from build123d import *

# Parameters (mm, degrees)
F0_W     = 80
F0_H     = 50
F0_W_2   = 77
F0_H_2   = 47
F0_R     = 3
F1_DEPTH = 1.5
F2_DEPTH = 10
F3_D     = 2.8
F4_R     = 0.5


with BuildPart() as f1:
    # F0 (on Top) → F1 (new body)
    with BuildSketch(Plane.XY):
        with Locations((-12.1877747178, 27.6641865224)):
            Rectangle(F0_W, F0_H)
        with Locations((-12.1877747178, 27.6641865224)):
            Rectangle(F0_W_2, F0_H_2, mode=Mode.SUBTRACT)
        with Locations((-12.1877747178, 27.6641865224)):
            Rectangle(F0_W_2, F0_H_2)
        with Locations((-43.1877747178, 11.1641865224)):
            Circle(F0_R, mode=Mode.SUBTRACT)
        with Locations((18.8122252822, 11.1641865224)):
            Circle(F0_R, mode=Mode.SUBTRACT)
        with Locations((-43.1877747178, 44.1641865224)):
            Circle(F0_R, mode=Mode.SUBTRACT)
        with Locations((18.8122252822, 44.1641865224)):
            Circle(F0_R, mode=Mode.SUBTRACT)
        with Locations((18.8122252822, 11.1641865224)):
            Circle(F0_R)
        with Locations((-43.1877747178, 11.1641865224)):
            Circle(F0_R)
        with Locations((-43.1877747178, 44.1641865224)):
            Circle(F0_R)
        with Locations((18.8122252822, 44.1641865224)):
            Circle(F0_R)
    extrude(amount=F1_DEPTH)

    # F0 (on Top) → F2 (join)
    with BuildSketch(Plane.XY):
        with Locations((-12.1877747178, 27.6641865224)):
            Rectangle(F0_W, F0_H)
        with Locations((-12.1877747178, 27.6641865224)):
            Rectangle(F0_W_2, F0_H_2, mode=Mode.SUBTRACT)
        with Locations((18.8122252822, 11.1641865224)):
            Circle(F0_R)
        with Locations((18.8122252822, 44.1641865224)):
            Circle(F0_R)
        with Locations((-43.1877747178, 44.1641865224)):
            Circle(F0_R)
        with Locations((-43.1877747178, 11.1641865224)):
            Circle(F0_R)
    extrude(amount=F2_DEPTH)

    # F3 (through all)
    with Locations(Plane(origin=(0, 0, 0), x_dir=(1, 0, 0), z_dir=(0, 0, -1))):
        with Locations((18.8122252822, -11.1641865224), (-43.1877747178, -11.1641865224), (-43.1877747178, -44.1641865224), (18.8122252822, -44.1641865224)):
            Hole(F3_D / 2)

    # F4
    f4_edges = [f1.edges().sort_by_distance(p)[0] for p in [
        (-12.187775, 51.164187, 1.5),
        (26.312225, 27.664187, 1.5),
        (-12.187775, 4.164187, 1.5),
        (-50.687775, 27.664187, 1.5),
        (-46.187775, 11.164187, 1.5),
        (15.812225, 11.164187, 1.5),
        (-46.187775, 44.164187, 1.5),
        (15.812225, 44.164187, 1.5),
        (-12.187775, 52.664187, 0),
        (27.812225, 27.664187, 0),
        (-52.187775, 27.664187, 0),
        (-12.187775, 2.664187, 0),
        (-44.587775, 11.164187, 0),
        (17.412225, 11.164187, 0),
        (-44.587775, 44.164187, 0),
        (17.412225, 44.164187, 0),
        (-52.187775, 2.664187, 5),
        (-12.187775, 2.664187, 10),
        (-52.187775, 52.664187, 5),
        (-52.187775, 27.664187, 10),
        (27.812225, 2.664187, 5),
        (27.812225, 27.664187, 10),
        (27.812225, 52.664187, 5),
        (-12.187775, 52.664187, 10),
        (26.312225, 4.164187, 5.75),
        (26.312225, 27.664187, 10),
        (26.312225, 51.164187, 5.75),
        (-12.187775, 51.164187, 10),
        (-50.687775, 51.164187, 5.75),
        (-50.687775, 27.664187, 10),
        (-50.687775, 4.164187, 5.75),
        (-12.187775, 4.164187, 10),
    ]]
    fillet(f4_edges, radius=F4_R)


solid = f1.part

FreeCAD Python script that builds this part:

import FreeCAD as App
import Part
import Sketcher


def edges_at(feature, points):
    """Names of the edges that pass closest to the given points."""
    edges = feature.Shape.Edges
    near = lambda p: min(range(len(edges)), key=lambda i: edges[i].distToShape(Part.Vertex(*p))[0])
    return sorted({f"Edge{near(p) + 1}" for p in points})


def add_polygon(sketch, points):
    """Adds a closed chain of lines whose ends are joined by coincident constraints."""
    first, n = sketch.GeometryCount, len(points)
    for a, b in zip(points, points[1:] + points[:1]):
        sketch.addGeometry(Part.LineSegment(App.Vector(*a, 0), App.Vector(*b, 0)), False)
    for i in range(n):
        sketch.addConstraint(Sketcher.Constraint("Coincident", first + i, 2, first + (i + 1) % n, 1))

doc = App.newDocument("Part")
params = doc.addObject("Spreadsheet::Sheet", "Params")
for row, (alias, value) in enumerate([
    ("sketch1_width", "80 mm"),
    ("sketch1_height", "50 mm"),
    ("pad1_length", "1.5 mm"),
    ("sketch2_diameter", "6 mm"),
    ("sketch2_width", "80 mm"),
    ("sketch2_width2", "77 mm"),
    ("sketch2_height", "50 mm"),
    ("sketch2_height2", "47 mm"),
    ("pad2_length", "10 mm"),
    ("sketch3_diameter", "2.8 mm"),
    ("hole_diameter", "2.8 mm"),
    ("fillet_radius", "0.5 mm"),
], start=1):
    params.set(f"A{row}", alias)
    params.set(f"B{row}", "=" + value)
    params.setAlias(f"B{row}", alias)

body = doc.addObject("PartDesign::Body", "Body")

# Sketch on XY plane
sketch1 = body.newObject("Sketcher::SketchObject", "Sketch")
sketch1.AttachmentSupport = (doc.getObject("XY_Plane"), [""])
sketch1.MapMode = "FlatFace"
add_polygon(sketch1, [(-52.187775, 52.664187), (-52.187775, 2.664187), (27.812225, 2.664187), (27.812225, 52.664187)])  # lines 0-3
sketch1.addConstraint([
    Sketcher.Constraint("Vertical", 0),
    Sketcher.Constraint("Horizontal", 1),
    Sketcher.Constraint("Vertical", 2),
    Sketcher.Constraint("Horizontal", 3),
    Sketcher.Constraint("DistanceX", 1, 1, 1, 2, 80.0),
    Sketcher.Constraint("DistanceY", 0, 2, 0, 1, 50.0),
    Sketcher.Constraint("DistanceX", 0, 2, -1, 1, 52.187775),
    Sketcher.Constraint("DistanceY", -1, 1, 0, 2, 2.664187),
])
sketch1.setExpression("Constraints[8]", "Params.sketch1_width")
sketch1.setExpression("Constraints[9]", "Params.sketch1_height")
pad1 = body.newObject("PartDesign::Pad", "Pad")
pad1.Profile = sketch1
pad1.setExpression("Length", "Params.pad1_length")

# Sketch on XY plane
sketch2 = body.newObject("Sketcher::SketchObject", "Sketch001")
sketch2.AttachmentSupport = (doc.getObject("XY_Plane"), [""])
sketch2.MapMode = "FlatFace"
add_polygon(sketch2, [(-52.187775, 52.664187), (-52.187775, 2.664187), (27.812225, 2.664187), (27.812225, 52.664187)])  # lines 0-3
add_polygon(sketch2, [(26.312225, 4.164187), (-50.687775, 4.164187), (-50.687775, 51.164187), (26.312225, 51.164187)])  # lines 4-7
sketch2.addGeometry(Part.Circle(App.Vector(18.812225, 11.164187, 0), App.Vector(0, 0, 1), 3), False)  # 8
sketch2.addGeometry(Part.Circle(App.Vector(18.812225, 44.164187, 0), App.Vector(0, 0, 1), 3), False)  # 9
sketch2.addGeometry(Part.Circle(App.Vector(-43.187775, 44.164187, 0), App.Vector(0, 0, 1), 3), False)  # 10
sketch2.addGeometry(Part.Circle(App.Vector(-43.187775, 11.164187, 0), App.Vector(0, 0, 1), 3), False)  # 11
sketch2.addConstraint([
    Sketcher.Constraint("Vertical", 0),
    Sketcher.Constraint("Horizontal", 1),
    Sketcher.Constraint("Vertical", 2),
    Sketcher.Constraint("Horizontal", 3),
    Sketcher.Constraint("Horizontal", 4),
    Sketcher.Constraint("Vertical", 5),
    Sketcher.Constraint("Horizontal", 6),
    Sketcher.Constraint("Vertical", 7),
    Sketcher.Constraint("Equal", 8, 9),
    Sketcher.Constraint("Equal", 9, 10),
    Sketcher.Constraint("Equal", 10, 11),
    Sketcher.Constraint("Horizontal", 9, 3, 10, 3),
    Sketcher.Constraint("Horizontal", 8, 3, 11, 3),
    Sketcher.Constraint("Vertical", 8, 3, 9, 3),
    Sketcher.Constraint("Vertical", 10, 3, 11, 3),
    Sketcher.Constraint("Diameter", 8, 6.0),
    Sketcher.Constraint("DistanceX", 1, 1, 1, 2, 80.0),
    Sketcher.Constraint("DistanceX", 4, 2, 4, 1, 77.0),
    Sketcher.Constraint("DistanceY", 0, 2, 0, 1, 50.0),
    Sketcher.Constraint("DistanceY", 5, 1, 5, 2, 47.0),
    Sketcher.Constraint("DistanceY", 8, 3, 9, 3, 33.0),
    Sketcher.Constraint("DistanceX", 10, 3, 9, 3, 62.0),
    Sketcher.Constraint("DistanceX", 0, 2, 11, 3, 9.0),
    Sketcher.Constraint("DistanceY", 4, 2, 11, 3, 7.0),
    Sketcher.Constraint("DistanceY", 0, 2, 11, 3, 8.5),
    Sketcher.Constraint("DistanceX", 0, 2, 4, 2, 1.5),
    Sketcher.Constraint("DistanceX", -1, 1, 8, 3, 18.812225),
    Sketcher.Constraint("DistanceY", -1, 1, 8, 3, 11.164187),
])
sketch2.setExpression("Constraints[23]", "Params.sketch2_diameter")
sketch2.setExpression("Constraints[24]", "Params.sketch2_width")
sketch2.setExpression("Constraints[25]", "Params.sketch2_width2")
sketch2.setExpression("Constraints[26]", "Params.sketch2_height")
sketch2.setExpression("Constraints[27]", "Params.sketch2_height2")
pad2 = body.newObject("PartDesign::Pad", "Pad001")
pad2.Profile = sketch2
pad2.setExpression("Length", "Params.pad2_length")

# Sketch on XY plane
sketch3 = body.newObject("Sketcher::SketchObject", "Sketch002")
sketch3.AttachmentSupport = (doc.getObject("XY_Plane"), [""])
sketch3.MapMode = "FlatFace"
sketch3.addGeometry([
    Part.Circle(App.Vector(18.812225, 11.164187, 0), App.Vector(0, 0, 1), 1.4),
    Part.Circle(App.Vector(-43.187775, 11.164187, 0), App.Vector(0, 0, 1), 1.4),
    Part.Circle(App.Vector(-43.187775, 44.164187, 0), App.Vector(0, 0, 1), 1.4),
    Part.Circle(App.Vector(18.812225, 44.164187, 0), App.Vector(0, 0, 1), 1.4),
], False)
sketch3.addConstraint([
    Sketcher.Constraint("Equal", 0, 1),
    Sketcher.Constraint("Equal", 1, 2),
    Sketcher.Constraint("Equal", 2, 3),
    Sketcher.Constraint("Horizontal", 0, 3, 1, 3),
    Sketcher.Constraint("Horizontal", 2, 3, 3, 3),
    Sketcher.Constraint("Vertical", 1, 3, 2, 3),
    Sketcher.Constraint("Vertical", 0, 3, 3, 3),
    Sketcher.Constraint("Diameter", 0, 2.8),
    Sketcher.Constraint("DistanceX", 1, 3, 0, 3, 62.0),
    Sketcher.Constraint("DistanceY", 1, 3, 2, 3, 33.0),
    Sketcher.Constraint("DistanceX", -1, 1, 0, 3, 18.812225),
    Sketcher.Constraint("DistanceY", -1, 1, 0, 3, 11.164187),
])
sketch3.setExpression("Constraints[7]", "Params.sketch3_diameter")
doc.recompute()
hole = body.newObject("PartDesign::Hole", "Hole")
hole.Profile = sketch3
hole.ThreadType = "None"
hole.setExpression("Diameter", "Params.hole_diameter")
hole.DepthType = "ThroughAll"
hole.Reversed = True
doc.recompute()

fillet = body.newObject("PartDesign::Fillet", "Fillet")
fillet.Base = (hole, edges_at(hole, [
    (-12.188, 51.164, 1.5),
    (26.312, 27.664, 1.5),
    (-12.188, 4.164, 1.5),
    (-50.688, 27.664, 1.5),
    (-46.188, 11.164, 1.5),
    (15.812, 11.164, 1.5),
    (-46.188, 44.164, 1.5),
    (15.812, 44.164, 1.5),
    (-12.188, 52.664, 0),
    (27.812, 27.664, 0),
    (-52.188, 27.664, 0),
    (-12.188, 2.664, 0),
    (-41.788, 11.164, 0),
    (20.212, 11.164, 0),
    (-41.788, 44.164, 0),
    (20.212, 44.164, 0),
    (-52.188, 2.664, 5),
    (-12.188, 2.664, 10),
    (-52.188, 52.664, 5),
    (-52.188, 27.664, 10),
    (27.812, 2.664, 5),
    (27.812, 27.664, 10),
    (27.812, 52.664, 5),
    (-12.188, 52.664, 10),
    (26.312, 4.164, 5.75),
    (26.312, 27.664, 10),
    (26.312, 51.164, 5.75),
    (-12.188, 51.164, 10),
    (-50.688, 51.164, 5.75),
    (-50.688, 27.664, 10),
    (-50.688, 4.164, 5.75),
    (-12.188, 4.164, 10),
]))
fillet.setExpression("Radius", "Params.fillet_radius")

doc.recompute()
